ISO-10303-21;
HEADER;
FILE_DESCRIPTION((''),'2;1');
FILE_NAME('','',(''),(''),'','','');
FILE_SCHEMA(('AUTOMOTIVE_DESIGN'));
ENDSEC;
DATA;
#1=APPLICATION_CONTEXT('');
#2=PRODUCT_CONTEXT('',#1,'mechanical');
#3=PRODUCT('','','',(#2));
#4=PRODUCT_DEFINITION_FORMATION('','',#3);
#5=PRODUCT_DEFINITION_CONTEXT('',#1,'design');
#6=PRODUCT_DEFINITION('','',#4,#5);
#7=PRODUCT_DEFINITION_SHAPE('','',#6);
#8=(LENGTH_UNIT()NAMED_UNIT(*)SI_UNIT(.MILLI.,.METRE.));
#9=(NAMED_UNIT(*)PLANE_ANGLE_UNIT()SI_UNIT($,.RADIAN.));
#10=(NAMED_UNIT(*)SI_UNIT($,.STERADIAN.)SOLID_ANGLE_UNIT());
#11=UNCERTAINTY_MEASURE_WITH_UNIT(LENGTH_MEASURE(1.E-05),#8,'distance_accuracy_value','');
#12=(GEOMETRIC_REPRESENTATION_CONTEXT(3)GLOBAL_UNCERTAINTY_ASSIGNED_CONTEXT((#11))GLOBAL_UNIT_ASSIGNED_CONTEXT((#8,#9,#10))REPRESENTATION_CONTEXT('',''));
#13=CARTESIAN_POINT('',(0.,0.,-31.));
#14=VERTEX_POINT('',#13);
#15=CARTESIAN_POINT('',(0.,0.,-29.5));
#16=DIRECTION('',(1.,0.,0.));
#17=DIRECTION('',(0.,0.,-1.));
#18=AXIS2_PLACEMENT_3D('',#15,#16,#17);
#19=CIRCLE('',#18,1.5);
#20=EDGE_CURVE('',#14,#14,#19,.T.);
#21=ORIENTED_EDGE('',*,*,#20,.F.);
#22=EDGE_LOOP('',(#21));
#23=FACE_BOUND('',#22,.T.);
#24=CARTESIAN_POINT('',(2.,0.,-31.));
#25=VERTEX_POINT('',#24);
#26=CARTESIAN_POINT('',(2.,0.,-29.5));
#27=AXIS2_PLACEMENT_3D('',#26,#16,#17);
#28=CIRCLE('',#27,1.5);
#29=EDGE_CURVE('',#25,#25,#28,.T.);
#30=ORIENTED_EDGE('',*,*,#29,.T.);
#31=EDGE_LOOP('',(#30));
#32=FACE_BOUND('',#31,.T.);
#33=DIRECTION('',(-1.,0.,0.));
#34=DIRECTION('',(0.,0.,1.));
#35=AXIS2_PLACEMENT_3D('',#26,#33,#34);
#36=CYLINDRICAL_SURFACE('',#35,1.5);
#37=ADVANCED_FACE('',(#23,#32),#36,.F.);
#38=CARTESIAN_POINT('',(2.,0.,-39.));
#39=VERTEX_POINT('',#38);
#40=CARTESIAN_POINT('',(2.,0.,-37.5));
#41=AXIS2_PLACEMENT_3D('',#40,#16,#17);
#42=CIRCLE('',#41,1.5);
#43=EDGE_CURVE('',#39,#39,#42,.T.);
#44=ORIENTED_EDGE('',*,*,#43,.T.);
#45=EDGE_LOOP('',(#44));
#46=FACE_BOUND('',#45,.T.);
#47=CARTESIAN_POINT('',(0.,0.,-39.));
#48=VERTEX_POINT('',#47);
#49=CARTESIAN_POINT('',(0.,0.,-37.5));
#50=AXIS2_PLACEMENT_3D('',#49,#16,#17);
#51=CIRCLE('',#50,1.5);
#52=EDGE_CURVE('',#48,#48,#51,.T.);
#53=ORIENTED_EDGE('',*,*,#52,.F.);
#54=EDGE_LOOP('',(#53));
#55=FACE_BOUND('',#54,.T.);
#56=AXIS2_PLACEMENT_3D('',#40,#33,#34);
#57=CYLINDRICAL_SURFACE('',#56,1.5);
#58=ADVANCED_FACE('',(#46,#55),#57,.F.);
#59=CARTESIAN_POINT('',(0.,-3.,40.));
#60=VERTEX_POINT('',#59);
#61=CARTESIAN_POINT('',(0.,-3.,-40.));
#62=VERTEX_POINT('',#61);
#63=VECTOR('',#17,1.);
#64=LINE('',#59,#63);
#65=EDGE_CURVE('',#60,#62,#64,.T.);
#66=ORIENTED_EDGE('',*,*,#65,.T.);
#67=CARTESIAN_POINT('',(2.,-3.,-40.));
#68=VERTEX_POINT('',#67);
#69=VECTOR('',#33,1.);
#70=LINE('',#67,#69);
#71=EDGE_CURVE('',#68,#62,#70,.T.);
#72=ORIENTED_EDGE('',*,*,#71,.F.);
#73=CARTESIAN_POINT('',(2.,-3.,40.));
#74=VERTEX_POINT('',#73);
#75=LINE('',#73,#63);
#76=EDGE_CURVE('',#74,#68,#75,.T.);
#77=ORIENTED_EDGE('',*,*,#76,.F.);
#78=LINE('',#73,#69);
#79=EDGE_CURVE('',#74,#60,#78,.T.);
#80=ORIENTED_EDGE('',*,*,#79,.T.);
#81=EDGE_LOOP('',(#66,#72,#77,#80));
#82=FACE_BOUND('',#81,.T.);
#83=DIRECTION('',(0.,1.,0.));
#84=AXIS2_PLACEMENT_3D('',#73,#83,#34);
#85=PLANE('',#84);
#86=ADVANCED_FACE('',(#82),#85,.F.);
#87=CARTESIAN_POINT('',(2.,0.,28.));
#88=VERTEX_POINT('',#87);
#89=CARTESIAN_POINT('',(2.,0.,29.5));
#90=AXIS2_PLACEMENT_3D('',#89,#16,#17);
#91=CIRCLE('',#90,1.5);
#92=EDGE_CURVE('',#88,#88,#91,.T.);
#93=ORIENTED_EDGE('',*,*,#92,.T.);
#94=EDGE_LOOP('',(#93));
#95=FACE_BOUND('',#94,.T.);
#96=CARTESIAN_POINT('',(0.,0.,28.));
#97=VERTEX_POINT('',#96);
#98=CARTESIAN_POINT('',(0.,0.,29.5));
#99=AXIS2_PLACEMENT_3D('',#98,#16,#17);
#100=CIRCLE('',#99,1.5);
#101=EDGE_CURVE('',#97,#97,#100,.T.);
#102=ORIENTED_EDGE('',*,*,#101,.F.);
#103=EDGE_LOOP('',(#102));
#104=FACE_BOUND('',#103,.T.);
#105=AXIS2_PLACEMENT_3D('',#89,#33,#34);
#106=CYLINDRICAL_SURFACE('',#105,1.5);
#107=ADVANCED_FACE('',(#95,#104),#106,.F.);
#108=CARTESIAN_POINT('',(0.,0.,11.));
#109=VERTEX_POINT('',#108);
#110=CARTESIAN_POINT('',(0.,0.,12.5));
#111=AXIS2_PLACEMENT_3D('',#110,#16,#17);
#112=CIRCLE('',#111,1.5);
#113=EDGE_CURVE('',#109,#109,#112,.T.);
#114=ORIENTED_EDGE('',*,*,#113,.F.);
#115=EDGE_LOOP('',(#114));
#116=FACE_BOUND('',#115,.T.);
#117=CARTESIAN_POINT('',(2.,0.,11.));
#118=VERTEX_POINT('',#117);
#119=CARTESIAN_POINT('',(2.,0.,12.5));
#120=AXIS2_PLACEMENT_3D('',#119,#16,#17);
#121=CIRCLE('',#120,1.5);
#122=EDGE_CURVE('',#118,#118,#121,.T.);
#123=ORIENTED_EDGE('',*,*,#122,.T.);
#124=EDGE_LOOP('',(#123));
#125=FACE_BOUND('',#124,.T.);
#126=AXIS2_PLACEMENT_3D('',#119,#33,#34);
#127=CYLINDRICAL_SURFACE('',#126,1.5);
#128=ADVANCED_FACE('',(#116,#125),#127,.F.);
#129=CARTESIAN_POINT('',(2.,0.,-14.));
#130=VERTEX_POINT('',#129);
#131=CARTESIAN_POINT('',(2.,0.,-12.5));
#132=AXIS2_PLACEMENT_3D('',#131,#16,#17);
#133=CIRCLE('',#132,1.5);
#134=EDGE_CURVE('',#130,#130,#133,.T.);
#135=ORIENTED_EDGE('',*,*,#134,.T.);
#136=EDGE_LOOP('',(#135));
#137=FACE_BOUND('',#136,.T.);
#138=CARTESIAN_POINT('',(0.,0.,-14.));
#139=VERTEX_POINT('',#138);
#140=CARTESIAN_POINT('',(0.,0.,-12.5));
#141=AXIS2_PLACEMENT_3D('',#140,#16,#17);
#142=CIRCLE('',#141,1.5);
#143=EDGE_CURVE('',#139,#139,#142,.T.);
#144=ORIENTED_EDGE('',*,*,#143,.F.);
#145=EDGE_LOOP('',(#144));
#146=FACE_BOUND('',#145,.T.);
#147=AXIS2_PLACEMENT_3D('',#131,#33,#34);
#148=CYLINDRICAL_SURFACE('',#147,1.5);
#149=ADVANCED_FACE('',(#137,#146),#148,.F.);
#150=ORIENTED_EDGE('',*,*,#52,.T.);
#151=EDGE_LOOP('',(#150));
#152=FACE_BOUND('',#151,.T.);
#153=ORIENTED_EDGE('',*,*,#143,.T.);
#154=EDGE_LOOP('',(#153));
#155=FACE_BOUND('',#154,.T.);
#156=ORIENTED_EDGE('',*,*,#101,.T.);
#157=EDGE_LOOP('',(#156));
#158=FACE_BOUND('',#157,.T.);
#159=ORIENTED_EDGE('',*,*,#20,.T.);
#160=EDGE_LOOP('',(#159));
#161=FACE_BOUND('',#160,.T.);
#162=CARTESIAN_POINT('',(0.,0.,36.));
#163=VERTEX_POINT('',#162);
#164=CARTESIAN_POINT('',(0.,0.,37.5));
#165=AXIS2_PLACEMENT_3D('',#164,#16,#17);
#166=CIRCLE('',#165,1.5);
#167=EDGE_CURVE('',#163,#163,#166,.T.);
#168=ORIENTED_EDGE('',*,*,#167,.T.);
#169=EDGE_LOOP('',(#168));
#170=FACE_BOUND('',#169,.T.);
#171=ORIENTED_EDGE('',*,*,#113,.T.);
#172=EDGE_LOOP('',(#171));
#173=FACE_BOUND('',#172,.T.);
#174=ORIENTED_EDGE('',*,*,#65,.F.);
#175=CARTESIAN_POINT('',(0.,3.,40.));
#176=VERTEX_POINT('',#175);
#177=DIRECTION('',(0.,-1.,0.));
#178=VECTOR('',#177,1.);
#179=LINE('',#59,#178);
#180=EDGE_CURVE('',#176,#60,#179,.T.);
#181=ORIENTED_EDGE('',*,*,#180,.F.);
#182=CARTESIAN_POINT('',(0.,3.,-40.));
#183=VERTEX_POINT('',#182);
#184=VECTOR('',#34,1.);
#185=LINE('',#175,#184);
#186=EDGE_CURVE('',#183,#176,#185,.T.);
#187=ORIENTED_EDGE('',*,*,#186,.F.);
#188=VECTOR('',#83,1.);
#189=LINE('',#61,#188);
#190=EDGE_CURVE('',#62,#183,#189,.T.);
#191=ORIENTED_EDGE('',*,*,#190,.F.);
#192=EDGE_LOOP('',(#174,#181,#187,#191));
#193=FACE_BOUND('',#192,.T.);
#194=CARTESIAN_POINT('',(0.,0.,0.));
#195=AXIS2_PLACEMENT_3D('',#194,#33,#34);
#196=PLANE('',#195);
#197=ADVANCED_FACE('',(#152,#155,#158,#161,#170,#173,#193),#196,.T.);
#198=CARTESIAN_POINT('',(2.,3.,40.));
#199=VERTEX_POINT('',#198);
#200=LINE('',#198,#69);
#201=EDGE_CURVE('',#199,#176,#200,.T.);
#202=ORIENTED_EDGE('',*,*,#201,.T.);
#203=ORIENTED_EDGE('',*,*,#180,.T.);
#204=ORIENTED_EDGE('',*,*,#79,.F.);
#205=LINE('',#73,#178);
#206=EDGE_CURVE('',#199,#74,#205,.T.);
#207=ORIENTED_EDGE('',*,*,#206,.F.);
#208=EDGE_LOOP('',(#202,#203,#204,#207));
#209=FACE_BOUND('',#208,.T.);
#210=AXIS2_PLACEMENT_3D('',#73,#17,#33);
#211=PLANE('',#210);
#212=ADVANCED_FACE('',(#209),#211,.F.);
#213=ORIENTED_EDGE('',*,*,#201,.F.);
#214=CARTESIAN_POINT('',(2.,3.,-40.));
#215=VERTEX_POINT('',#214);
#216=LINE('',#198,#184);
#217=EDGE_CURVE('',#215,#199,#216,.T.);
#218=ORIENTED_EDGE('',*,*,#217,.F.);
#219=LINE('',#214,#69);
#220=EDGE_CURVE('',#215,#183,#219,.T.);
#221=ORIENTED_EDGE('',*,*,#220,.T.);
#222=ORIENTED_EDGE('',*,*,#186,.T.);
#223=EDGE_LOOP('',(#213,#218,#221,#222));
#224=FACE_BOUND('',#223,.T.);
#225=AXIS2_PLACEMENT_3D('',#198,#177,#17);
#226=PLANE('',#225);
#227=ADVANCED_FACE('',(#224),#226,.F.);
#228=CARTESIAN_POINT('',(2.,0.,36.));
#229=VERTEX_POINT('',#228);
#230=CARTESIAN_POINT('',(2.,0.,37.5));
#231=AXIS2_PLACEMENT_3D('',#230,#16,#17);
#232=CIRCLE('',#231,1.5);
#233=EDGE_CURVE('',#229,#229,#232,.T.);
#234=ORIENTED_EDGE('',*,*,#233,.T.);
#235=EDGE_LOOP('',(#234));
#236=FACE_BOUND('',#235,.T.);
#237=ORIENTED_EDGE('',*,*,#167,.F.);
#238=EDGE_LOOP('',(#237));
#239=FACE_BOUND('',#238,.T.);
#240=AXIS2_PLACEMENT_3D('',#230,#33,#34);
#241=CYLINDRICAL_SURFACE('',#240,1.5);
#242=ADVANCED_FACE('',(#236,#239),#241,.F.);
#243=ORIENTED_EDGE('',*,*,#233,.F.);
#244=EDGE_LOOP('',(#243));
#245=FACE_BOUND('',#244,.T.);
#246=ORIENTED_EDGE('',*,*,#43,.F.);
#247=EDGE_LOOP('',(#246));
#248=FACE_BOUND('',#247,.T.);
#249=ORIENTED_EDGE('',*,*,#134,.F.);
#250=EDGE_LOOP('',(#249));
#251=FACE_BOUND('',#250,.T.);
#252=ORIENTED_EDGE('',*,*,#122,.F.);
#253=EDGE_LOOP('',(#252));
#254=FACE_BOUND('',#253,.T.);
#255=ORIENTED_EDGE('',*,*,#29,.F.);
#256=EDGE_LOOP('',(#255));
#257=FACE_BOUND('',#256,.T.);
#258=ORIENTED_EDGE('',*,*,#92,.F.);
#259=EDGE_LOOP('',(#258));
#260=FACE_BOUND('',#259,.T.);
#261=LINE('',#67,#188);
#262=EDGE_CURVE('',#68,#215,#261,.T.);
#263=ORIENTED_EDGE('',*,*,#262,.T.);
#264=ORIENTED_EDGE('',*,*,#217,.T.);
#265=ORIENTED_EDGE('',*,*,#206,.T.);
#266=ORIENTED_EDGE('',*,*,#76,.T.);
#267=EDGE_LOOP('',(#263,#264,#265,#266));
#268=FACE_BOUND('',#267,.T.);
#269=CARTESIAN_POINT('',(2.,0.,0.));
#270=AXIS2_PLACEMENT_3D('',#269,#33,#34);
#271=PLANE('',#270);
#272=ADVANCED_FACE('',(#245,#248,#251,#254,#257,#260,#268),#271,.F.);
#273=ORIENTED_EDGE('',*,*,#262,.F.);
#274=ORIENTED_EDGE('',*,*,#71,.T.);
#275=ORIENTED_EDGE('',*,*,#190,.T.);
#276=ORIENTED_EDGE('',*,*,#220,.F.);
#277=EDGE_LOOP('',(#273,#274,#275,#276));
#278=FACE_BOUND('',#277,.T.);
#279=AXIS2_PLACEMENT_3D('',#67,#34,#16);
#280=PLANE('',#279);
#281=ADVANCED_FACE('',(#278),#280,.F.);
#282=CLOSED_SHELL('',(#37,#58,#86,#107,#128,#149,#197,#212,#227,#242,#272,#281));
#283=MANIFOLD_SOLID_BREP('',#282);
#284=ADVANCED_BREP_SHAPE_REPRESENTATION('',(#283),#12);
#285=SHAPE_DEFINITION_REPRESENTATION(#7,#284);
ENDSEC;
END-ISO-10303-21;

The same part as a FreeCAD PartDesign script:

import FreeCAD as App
import Part
import Sketcher


def add_polygon(sketch, points):
    """Adds a closed chain of lines whose ends are joined by coincident constraints."""
    first, n = sketch.GeometryCount, len(points)
    for a, b in zip(points, points[1:] + points[:1]):
        sketch.addGeometry(Part.LineSegment(App.Vector(*a, 0), App.Vector(*b, 0)), False)
    for i in range(n):
        sketch.addConstraint(Sketcher.Constraint("Coincident", first + i, 2, first + (i + 1) % n, 1))

doc = App.newDocument("Part")
params = doc.addObject("Spreadsheet::Sheet", "Params")
for row, (alias, value) in enumerate([
    ("sketch1_diameter", "3 mm"),
    ("sketch1_width", "6 mm"),
    ("sketch1_height", "80 mm"),
    ("pad1_length", "2 mm"),
], start=1):
    params.set(f"A{row}", alias)
    params.set(f"B{row}", "=" + value)
    params.setAlias(f"B{row}", alias)

body = doc.addObject("PartDesign::Body", "Body")

sketch1 = body.newObject("Sketcher::SketchObject", "Sketch")
sketch1.AttachmentSupport = (doc.getObject("YZ_Plane"), [""])
sketch1.MapMode = "FlatFace"
add_polygon(sketch1, [(3, 40), (-3, 40), (-3, -40), (3, -40)])
sketch1.addGeometry(Part.Circle(App.Vector(0, 37.5, 0), App.Vector(0, 0, 1), 1.5), False)
sketch1.addGeometry(Part.Circle(App.Vector(0, 29.5, 0), App.Vector(0, 0, 1), 1.5), False)
sketch1.addGeometry(Part.Circle(App.Vector(0, 12.5, 0), App.Vector(0, 0, 1), 1.5), False)
sketch1.addGeometry(Part.Circle(App.Vector(0, -12.5, 0), App.Vector(0, 0, 1), 1.5), False)
sketch1.addGeometry(Part.Circle(App.Vector(0, -29.5, 0), App.Vector(0, 0, 1), 1.5), False)
sketch1.addGeometry(Part.Circle(App.Vector(0, -37.5, 0), App.Vector(0, 0, 1), 1.5), False)
sketch1.addConstraint([
    Sketcher.Constraint("Horizontal", 0),
    Sketcher.Constraint("Vertical", 1),
    Sketcher.Constraint("Horizontal", 2),
    Sketcher.Constraint("Vertical", 3),
    Sketcher.Constraint("Equal", 4, 5),
    Sketcher.Constraint("Equal", 5, 6),
    Sketcher.Constraint("Equal", 6, 7),
    Sketcher.Constraint("Equal", 7, 8),
    Sketcher.Constraint("Equal", 8, 9),
    Sketcher.Constraint("Symmetric", 6, 3, 7, 3, -1, 1),
    Sketcher.Constraint("Symmetric", 5, 3, 8, 3, -1, 1),
    Sketcher.Constraint("Symmetric", 4, 3, 9, 3, -1, 1),
    Sketcher.Constraint("Symmetric", 0, 2, 2, 2, -1, 1),
    Sketcher.Constraint("PointOnObject", 4, 3, -2),
    Sketcher.Constraint("PointOnObject", 5, 3, -2),
    Sketcher.Constraint("PointOnObject", 6, 3, -2),
    Sketcher.Constraint("Diameter", 4, 3.0),
    Sketcher.Constraint("DistanceX", 0, 2, 0, 1, 6.0),
    Sketcher.Constraint("DistanceY", 1, 2, 1, 1, 80.0),
    Sketcher.Constraint("DistanceY", 5, 3, 4, 3, 8.0),
    Sketcher.Constraint("DistanceY", 6, 3, 5, 3, 17.0),
    Sketcher.Constraint("DistanceY", 7, 3, 6, 3, 25.0),
])
sketch1.setExpression("Constraints[20]", "Params.sketch1_diameter")
sketch1.setExpression("Constraints[21]", "Params.sketch1_width")
sketch1.setExpression("Constraints[22]", "Params.sketch1_height")
pad1 = body.newObject("PartDesign::Pad", "Pad")
pad1.Profile = sketch1
pad1.setExpression("Length", "Params.pad1_length")

doc.recompute()
